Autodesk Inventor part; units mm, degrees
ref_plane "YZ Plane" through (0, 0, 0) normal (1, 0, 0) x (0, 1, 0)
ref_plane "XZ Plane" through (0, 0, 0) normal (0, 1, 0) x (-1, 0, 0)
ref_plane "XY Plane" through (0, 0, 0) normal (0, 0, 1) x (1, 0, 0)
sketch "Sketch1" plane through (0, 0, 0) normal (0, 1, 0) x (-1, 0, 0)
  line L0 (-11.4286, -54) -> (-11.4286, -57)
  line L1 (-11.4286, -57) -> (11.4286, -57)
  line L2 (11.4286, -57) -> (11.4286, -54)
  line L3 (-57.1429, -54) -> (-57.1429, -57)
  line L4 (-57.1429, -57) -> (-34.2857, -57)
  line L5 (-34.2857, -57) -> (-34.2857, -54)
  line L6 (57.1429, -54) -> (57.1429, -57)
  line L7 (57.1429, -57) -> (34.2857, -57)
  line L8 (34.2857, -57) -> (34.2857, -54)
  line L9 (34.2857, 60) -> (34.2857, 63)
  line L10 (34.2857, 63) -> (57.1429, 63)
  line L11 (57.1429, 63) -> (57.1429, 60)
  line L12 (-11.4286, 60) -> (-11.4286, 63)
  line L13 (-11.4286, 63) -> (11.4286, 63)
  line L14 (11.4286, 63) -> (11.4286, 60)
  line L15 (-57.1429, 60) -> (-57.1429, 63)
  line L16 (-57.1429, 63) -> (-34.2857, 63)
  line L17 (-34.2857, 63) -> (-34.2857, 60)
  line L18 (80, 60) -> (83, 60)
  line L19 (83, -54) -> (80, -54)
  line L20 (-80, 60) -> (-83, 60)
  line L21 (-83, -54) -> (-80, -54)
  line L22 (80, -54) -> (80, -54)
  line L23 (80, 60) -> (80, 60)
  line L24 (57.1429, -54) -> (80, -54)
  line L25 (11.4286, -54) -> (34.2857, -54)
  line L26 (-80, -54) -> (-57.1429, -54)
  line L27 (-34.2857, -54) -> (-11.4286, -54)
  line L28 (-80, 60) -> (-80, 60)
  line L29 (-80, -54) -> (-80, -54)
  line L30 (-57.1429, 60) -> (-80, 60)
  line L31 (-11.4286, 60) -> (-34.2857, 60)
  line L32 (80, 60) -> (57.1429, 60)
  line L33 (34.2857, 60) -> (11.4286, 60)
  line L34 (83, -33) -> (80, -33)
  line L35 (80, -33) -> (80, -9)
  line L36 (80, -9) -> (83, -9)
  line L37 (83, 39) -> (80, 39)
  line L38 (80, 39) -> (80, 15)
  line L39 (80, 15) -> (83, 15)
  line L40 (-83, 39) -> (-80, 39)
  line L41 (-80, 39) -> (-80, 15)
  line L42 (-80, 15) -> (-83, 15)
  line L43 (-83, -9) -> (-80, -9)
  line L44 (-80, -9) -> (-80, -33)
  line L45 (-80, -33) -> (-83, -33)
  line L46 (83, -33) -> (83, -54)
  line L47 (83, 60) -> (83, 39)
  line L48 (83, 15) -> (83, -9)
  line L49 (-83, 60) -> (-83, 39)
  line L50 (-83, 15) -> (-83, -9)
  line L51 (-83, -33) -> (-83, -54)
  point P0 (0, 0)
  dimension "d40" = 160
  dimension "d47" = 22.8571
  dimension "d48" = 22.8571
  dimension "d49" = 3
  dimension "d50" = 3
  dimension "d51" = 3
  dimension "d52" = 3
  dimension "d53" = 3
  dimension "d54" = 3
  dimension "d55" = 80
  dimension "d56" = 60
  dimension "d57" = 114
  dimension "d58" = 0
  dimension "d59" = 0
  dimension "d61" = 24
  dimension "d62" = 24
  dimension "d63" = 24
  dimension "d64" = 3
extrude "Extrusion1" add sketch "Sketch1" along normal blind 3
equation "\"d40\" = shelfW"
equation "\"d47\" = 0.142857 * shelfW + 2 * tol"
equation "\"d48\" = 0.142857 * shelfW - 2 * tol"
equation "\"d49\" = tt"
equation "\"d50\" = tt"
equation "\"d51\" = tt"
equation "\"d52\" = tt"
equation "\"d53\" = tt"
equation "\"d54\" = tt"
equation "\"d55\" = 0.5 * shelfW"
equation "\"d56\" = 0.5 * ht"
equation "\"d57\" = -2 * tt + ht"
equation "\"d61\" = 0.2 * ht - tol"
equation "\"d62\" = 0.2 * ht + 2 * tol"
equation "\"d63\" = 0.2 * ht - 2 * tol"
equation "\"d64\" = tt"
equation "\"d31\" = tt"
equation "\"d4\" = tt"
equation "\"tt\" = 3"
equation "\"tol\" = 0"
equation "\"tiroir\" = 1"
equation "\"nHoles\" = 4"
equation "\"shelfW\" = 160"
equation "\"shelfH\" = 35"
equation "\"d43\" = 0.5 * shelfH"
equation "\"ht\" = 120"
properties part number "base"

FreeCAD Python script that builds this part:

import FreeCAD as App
import Part
import Sketcher
from FreeCAD import Vector
Q = App.Units.Quantity

doc = App.newDocument("Part")
params = doc.addObject("Spreadsheet::Sheet", "Params")
for row, (alias, value) in enumerate([
    ("sketch1_width", "3 mm"),
    ("sketch1_height", "24 mm"),
    ("pad1_length", "3 mm"),
], start=1):
    params.set(f"A{row}", alias)
    params.set(f"B{row}", "=" + value)
    params.setAlias(f"B{row}", alias)

body = doc.addObject("PartDesign::Body", "Body")

# Sketch on XZ plane
sketch1 = body.newObject("Sketcher::SketchObject", "Sketch")
sketch1.AttachmentSupport = (doc.getObject("XZ_Plane"), [""])
sketch1.MapMode = "FlatFace"
sketch1.addGeometry(Part.LineSegment(Vector(34.3, -54, 0), Vector(11.4, -54, 0)), False)
sketch1.addGeometry(Part.LineSegment(Vector(11.4, -54, 0), Vector(11.4, -57, 0)), False)
sketch1.addGeometry(Part.LineSegment(Vector(11.4, -57, 0), Vector(-11.4, -57, 0)), False)
sketch1.addGeometry(Part.LineSegment(Vector(-11.4, -57, 0), Vector(-11.4, -54, 0)), False)
sketch1.addGeometry(Part.LineSegment(Vector(-11.4, -54, 0), Vector(-34.3, -54, 0)), False)
sketch1.addGeometry(Part.LineSegment(Vector(-34.3, -54, 0), Vector(-34.3, -57, 0)), False)
sketch1.addGeometry(Part.LineSegment(Vector(-34.3, -57, 0), Vector(-57.1, -57, 0)), False)
sketch1.addGeometry(Part.LineSegment(Vector(-57.1, -57, 0), Vector(-57.1, -54, 0)), False)
sketch1.addGeometry(Part.LineSegment(Vector(-57.1, -54, 0), Vector(-83, -54, 0)), False)
sketch1.addGeometry(Part.LineSegment(Vector(-83, -54, 0), Vector(-83, -33, 0)), False)
sketch1.addGeometry(Part.LineSegment(Vector(-83, -33, 0), Vector(-80, -33, 0)), False)
sketch1.addGeometry(Part.LineSegment(Vector(-80, -33, 0), Vector(-80, -9, 0)), False)
sketch1.addGeometry(Part.LineSegment(Vector(-80, -9, 0), Vector(-83, -9, 0)), False)
sketch1.addGeometry(Part.LineSegment(Vector(-83, -9, 0), Vector(-83, 15, 0)), False)
sketch1.addGeometry(Part.LineSegment(Vector(-83, 15, 0), Vector(-80, 15, 0)), False)
sketch1.addGeometry(Part.LineSegment(Vector(-80, 15, 0), Vector(-80, 39, 0)), False)
sketch1.addGeometry(Part.LineSegment(Vector(-80, 39, 0), Vector(-83, 39, 0)), False)
sketch1.addGeometry(Part.LineSegment(Vector(-83, 39, 0), Vector(-83, 60, 0)), False)
sketch1.addGeometry(Part.LineSegment(Vector(-83, 60, 0), Vector(-57.1, 60, 0)), False)
sketch1.addGeometry(Part.LineSegment(Vector(-57.1, 60, 0), Vector(-57.1, 63, 0)), False)
sketch1.addGeometry(Part.LineSegment(Vector(-57.1, 63, 0), Vector(-34.3, 63, 0)), False)
sketch1.addGeometry(Part.LineSegment(Vector(-34.3, 63, 0), Vector(-34.3, 60, 0)), False)
sketch1.addGeometry(Part.LineSegment(Vector(-34.3, 60, 0), Vector(-11.4, 60, 0)), False)
sketch1.addGeometry(Part.LineSegment(Vector(-11.4, 60, 0), Vector(-11.4, 63, 0)), False)
sketch1.addGeometry(Part.LineSegment(Vector(-11.4, 63, 0), Vector(11.4, 63, 0)), False)
sketch1.addGeometry(Part.LineSegment(Vector(11.4, 63, 0), Vector(11.4, 60, 0)), False)
sketch1.addGeometry(Part.LineSegment(Vector(11.4, 60, 0), Vector(34.3, 60, 0)), False)
sketch1.addGeometry(Part.LineSegment(Vector(34.3, 60, 0), Vector(34.3, 63, 0)), False)
sketch1.addGeometry(Part.LineSegment(Vector(34.3, 63, 0), Vector(57.1, 63, 0)), False)
sketch1.addGeometry(Part.LineSegment(Vector(57.1, 63, 0), Vector(57.1, 60, 0)), False)
sketch1.addGeometry(Part.LineSegment(Vector(57.1, 60, 0), Vector(83, 60, 0)), False)
sketch1.addGeometry(Part.LineSegment(Vector(83, 60, 0), Vector(83, 39, 0)), False)
sketch1.addGeometry(Part.LineSegment(Vector(83, 39, 0), Vector(80, 39, 0)), False)
sketch1.addGeometry(Part.LineSegment(Vector(80, 39, 0), Vector(80, 15, 0)), False)
sketch1.addGeometry(Part.LineSegment(Vector(80, 15, 0), Vector(83, 15, 0)), False)
sketch1.addGeometry(Part.LineSegment(Vector(83, 15, 0), Vector(83, -9, 0)), False)
sketch1.addGeometry(Part.LineSegment(Vector(83, -9, 0), Vector(80, -9, 0)), False)
sketch1.addGeometry(Part.LineSegment(Vector(80, -9, 0), Vector(80, -33, 0)), False)
sketch1.addGeometry(Part.LineSegment(Vector(80, -33, 0), Vector(83, -33, 0)), False)
sketch1.addGeometry(Part.LineSegment(Vector(83, -33, 0), Vector(83, -54, 0)), False)
sketch1.addGeometry(Part.LineSegment(Vector(83, -54, 0), Vector(57.1, -54, 0)), False)
sketch1.addGeometry(Part.LineSegment(Vector(57.1, -54, 0), Vector(57.1, -57, 0)), False)
sketch1.addGeometry(Part.LineSegment(Vector(57.1, -57, 0), Vector(34.3, -57, 0)), False)
sketch1.addGeometry(Part.LineSegment(Vector(34.3, -57, 0), Vector(34.3, -54, 0)), False)
sketch1.addConstraint(Sketcher.Constraint("Coincident", 0, 2, 1, 1))
sketch1.addConstraint(Sketcher.Constraint("Coincident", 1, 2, 2, 1))
sketch1.addConstraint(Sketcher.Constraint("Coincident", 2, 2, 3, 1))
sketch1.addConstraint(Sketcher.Constraint("Coincident", 3, 2, 4, 1))
sketch1.addConstraint(Sketcher.Constraint("Coincident", 4, 2, 5, 1))
sketch1.addConstraint(Sketcher.Constraint("Coincident", 5, 2, 6, 1))
sketch1.addConstraint(Sketcher.Constraint("Coincident", 6, 2, 7, 1))
sketch1.addConstraint(Sketcher.Constraint("Coincident", 7, 2, 8, 1))
sketch1.addConstraint(Sketcher.Constraint("Coincident", 8, 2, 9, 1))
sketch1.addConstraint(Sketcher.Constraint("Coincident", 9, 2, 10, 1))
sketch1.addConstraint(Sketcher.Constraint("Coincident", 10, 2, 11, 1))
sketch1.addConstraint(Sketcher.Constraint("Coincident", 11, 2, 12, 1))
sketch1.addConstraint(Sketcher.Constraint("Coincident", 12, 2, 13, 1))
sketch1.addConstraint(Sketcher.Constraint("Coincident", 13, 2, 14, 1))
sketch1.addConstraint(Sketcher.Constraint("Coincident", 14, 2, 15, 1))
sketch1.addConstraint(Sketcher.Constraint("Coincident", 15, 2, 16, 1))
sketch1.addConstraint(Sketcher.Constraint("Coincident", 16, 2, 17, 1))
sketch1.addConstraint(Sketcher.Constraint("Coincident", 17, 2, 18, 1))
sketch1.addConstraint(Sketcher.Constraint("Coincident", 18, 2, 19, 1))
sketch1.addConstraint(Sketcher.Constraint("Coincident", 19, 2, 20, 1))
sketch1.addConstraint(Sketcher.Constraint("Coincident", 20, 2, 21, 1))
sketch1.addConstraint(Sketcher.Constraint("Coincident", 21, 2, 22, 1))
sketch1.addConstraint(Sketcher.Constraint("Coincident", 22, 2, 23, 1))
sketch1.addConstraint(Sketcher.Constraint("Coincident", 23, 2, 24, 1))
sketch1.addConstraint(Sketcher.Constraint("Coincident", 24, 2, 25, 1))
sketch1.addConstraint(Sketcher.Constraint("Coincident", 25, 2, 26, 1))
sketch1.addConstraint(Sketcher.Constraint("Coincident", 26, 2, 27, 1))
sketch1.addConstraint(Sketcher.Constraint("Coincident", 27, 2, 28, 1))
sketch1.addConstraint(Sketcher.Constraint("Coincident", 28, 2, 29, 1))
sketch1.addConstraint(Sketcher.Constraint("Coincident", 29, 2, 30, 1))
sketch1.addConstraint(Sketcher.Constraint("Coincident", 30, 2, 31, 1))
sketch1.addConstraint(Sketcher.Constraint("Coincident", 31, 2, 32, 1))
sketch1.addConstraint(Sketcher.Constraint("Coincident", 32, 2, 33, 1))
sketch1.addConstraint(Sketcher.Constraint("Coincident", 33, 2, 34, 1))
sketch1.addConstraint(Sketcher.Constraint("Coincident", 34, 2, 35, 1))
sketch1.addConstraint(Sketcher.Constraint("Coincident", 35, 2, 36, 1))
sketch1.addConstraint(Sketcher.Constraint("Coincident", 36, 2, 37, 1))
sketch1.addConstraint(Sketcher.Constraint("Coincident", 37, 2, 38, 1))
sketch1.addConstraint(Sketcher.Constraint("Coincident", 38, 2, 39, 1))
sketch1.addConstraint(Sketcher.Constraint("Coincident", 39, 2, 40, 1))
sketch1.addConstraint(Sketcher.Constraint("Coincident", 40, 2, 41, 1))
sketch1.addConstraint(Sketcher.Constraint("Coincident", 41, 2, 42, 1))
sketch1.addConstraint(Sketcher.Constraint("Coincident", 42, 2, 43, 1))
sketch1.addConstraint(Sketcher.Constraint("Coincident", 43, 2, 0, 1))
sketch1.addConstraint(Sketcher.Constraint("Horizontal", 0))
sketch1.addConstraint(Sketcher.Constraint("Vertical", 1))
sketch1.addConstraint(Sketcher.Constraint("Horizontal", 2))
sketch1.addConstraint(Sketcher.Constraint("Vertical", 3))
sketch1.addConstraint(Sketcher.Constraint("Horizontal", 4))
sketch1.addConstraint(Sketcher.Constraint("Vertical", 5))
sketch1.addConstraint(Sketcher.Constraint("Horizontal", 6))
sketch1.addConstraint(Sketcher.Constraint("Vertical", 7))
sketch1.addConstraint(Sketcher.Constraint("Horizontal", 8))
sketch1.addConstraint(Sketcher.Constraint("Vertical", 9))
sketch1.addConstraint(Sketcher.Constraint("Horizontal", 10))
sketch1.addConstraint(Sketcher.Constraint("Vertical", 11))
sketch1.addConstraint(Sketcher.Constraint("Horizontal", 12))
sketch1.addConstraint(Sketcher.Constraint("Vertical", 13))
sketch1.addConstraint(Sketcher.Constraint("Horizontal", 14))
sketch1.addConstraint(Sketcher.Constraint("Vertical", 15))
sketch1.addConstraint(Sketcher.Constraint("Horizontal", 16))
sketch1.addConstraint(Sketcher.Constraint("Vertical", 17))
sketch1.addConstraint(Sketcher.Constraint("Horizontal", 18))
sketch1.addConstraint(Sketcher.Constraint("Vertical", 19))
sketch1.addConstraint(Sketcher.Constraint("Horizontal", 20))
sketch1.addConstraint(Sketcher.Constraint("Vertical", 21))
sketch1.addConstraint(Sketcher.Constraint("Horizontal", 22))
sketch1.addConstraint(Sketcher.Constraint("Vertical", 23))
sketch1.addConstraint(Sketcher.Constraint("Horizontal", 24))
sketch1.addConstraint(Sketcher.Constraint("Vertical", 25))
sketch1.addConstraint(Sketcher.Constraint("Horizontal", 26))
sketch1.addConstraint(Sketcher.Constraint("Vertical", 27))
sketch1.addConstraint(Sketcher.Constraint("Horizontal", 28))
sketch1.addConstraint(Sketcher.Constraint("Vertical", 29))
sketch1.addConstraint(Sketcher.Constraint("Horizontal", 30))
sketch1.addConstraint(Sketcher.Constraint("Vertical", 31))
sketch1.addConstraint(Sketcher.Constraint("Horizontal", 32))
sketch1.addConstraint(Sketcher.Constraint("Vertical", 33))
sketch1.addConstraint(Sketcher.Constraint("Horizontal", 34))
sketch1.addConstraint(Sketcher.Constraint("Vertical", 35))
sketch1.addConstraint(Sketcher.Constraint("Horizontal", 36))
sketch1.addConstraint(Sketcher.Constraint("Vertical", 37))
sketch1.addConstraint(Sketcher.Constraint("Horizontal", 38))
sketch1.addConstraint(Sketcher.Constraint("Vertical", 39))
sketch1.addConstraint(Sketcher.Constraint("Horizontal", 40))
sketch1.addConstraint(Sketcher.Constraint("Vertical", 41))
sketch1.addConstraint(Sketcher.Constraint("Horizontal", 42))
sketch1.addConstraint(Sketcher.Constraint("Vertical", 43))
sketch1.addConstraint(Sketcher.Constraint("Symmetric", 0, 2, 3, 2, -2))
sketch1.addConstraint(Sketcher.Constraint("Symmetric", 22, 2, 25, 2, -2))
sketch1.addConstraint(Sketcher.Constraint("Symmetric", 20, 2, 27, 2, -2))
sketch1.addConstraint(Sketcher.Constraint("Symmetric", 18, 2, 29, 2, -2))
sketch1.addConstraint(Sketcher.Constraint("Symmetric", 16, 2, 31, 2, -2))
sketch1.addConstraint(Sketcher.Constraint("Symmetric", 14, 2, 33, 2, -2))
sketch1.addConstraint(Sketcher.Constraint("Symmetric", 12, 2, 35, 2, -2))
sketch1.addConstraint(Sketcher.Constraint("Symmetric", 10, 2, 37, 2, -2))
sketch1.addConstraint(Sketcher.Constraint("Symmetric", 8, 2, 39, 2, -2))
sketch1.addConstraint(Sketcher.Constraint("Symmetric", 6, 2, 41, 2, -2))
sketch1.addConstraint(Sketcher.Constraint("Horizontal", 2, 2, 5, 2))
sketch1.addConstraint(Sketcher.Constraint("Horizontal", 4, 2, 7, 2))
sketch1.addConstraint(Sketcher.Constraint("Horizontal", 18, 2, 21, 2))
sketch1.addConstraint(Sketcher.Constraint("Horizontal", 20, 2, 23, 2))
sketch1.addConstraint(Sketcher.Constraint("Vertical", 9, 2, 12, 2))
sketch1.addConstraint(Sketcher.Constraint("Vertical", 11, 2, 14, 2))
sketch1.addConstraint(Sketcher.Constraint("Vertical", 13, 2, 16, 2))
sketch1.addConstraint(Sketcher.Constraint("Vertical", 7, 2, 18, 2))
sketch1.addConstraint(Sketcher.Constraint("Vertical", 5, 2, 20, 2))
sketch1.addConstraint(Sketcher.Constraint("Vertical", 3, 2, 22, 2))
sketch1.addConstraint(Sketcher.Constraint("Vertical", 27, 2, 42, 2))
sketch1.addConstraint(Sketcher.Constraint("Equal", 0, 2))
sketch1.addConstraint(Sketcher.Constraint("Equal", 4, 6))
sketch1.addConstraint(Sketcher.Constraint("Equal", 38, 1))
sketch1.addConstraint(Sketcher.Constraint("Equal", 11, 13))
sketch1.addConstraint(Sketcher.Constraint("Equal", 13, 15))
sketch1.addConstraint(Sketcher.Constraint("Equal", 9, 17))
sketch1.addConstraint(Sketcher.Constraint("Equal", 7, 19))
sketch1.addConstraint(Sketcher.Constraint("DistanceX", 10, 1, 10, 2, Q("3 mm")))
sketch1.addConstraint(Sketcher.Constraint("DistanceY", 11, 1, 11, 2, Q("24 mm")))
sketch1.addConstraint(Sketcher.Constraint("DistanceX", 10, 2, -1, 1, Q("80 mm")))
sketch1.addConstraint(Sketcher.Constraint("DistanceY", -1, 1, 17, 2, Q("60 mm")))
sketch1.addConstraint(Sketcher.Constraint("DistanceY", 6, 2, 9, 2, Q("24 mm")))
sketch1.addConstraint(Sketcher.Constraint("DistanceX", 0, 2, 0, 1, Q("22.857 mm")))
sketch1.setExpression("Constraints[116]", "Params.sketch1_width")
sketch1.setExpression("Constraints[117]", "Params.sketch1_height")
pad1 = body.newObject("PartDesign::Pad", "Pad")
pad1.Profile = sketch1
pad1.setExpression("Length", "Params.pad1_length")
pad1.Reversed = True

doc.recompute()
